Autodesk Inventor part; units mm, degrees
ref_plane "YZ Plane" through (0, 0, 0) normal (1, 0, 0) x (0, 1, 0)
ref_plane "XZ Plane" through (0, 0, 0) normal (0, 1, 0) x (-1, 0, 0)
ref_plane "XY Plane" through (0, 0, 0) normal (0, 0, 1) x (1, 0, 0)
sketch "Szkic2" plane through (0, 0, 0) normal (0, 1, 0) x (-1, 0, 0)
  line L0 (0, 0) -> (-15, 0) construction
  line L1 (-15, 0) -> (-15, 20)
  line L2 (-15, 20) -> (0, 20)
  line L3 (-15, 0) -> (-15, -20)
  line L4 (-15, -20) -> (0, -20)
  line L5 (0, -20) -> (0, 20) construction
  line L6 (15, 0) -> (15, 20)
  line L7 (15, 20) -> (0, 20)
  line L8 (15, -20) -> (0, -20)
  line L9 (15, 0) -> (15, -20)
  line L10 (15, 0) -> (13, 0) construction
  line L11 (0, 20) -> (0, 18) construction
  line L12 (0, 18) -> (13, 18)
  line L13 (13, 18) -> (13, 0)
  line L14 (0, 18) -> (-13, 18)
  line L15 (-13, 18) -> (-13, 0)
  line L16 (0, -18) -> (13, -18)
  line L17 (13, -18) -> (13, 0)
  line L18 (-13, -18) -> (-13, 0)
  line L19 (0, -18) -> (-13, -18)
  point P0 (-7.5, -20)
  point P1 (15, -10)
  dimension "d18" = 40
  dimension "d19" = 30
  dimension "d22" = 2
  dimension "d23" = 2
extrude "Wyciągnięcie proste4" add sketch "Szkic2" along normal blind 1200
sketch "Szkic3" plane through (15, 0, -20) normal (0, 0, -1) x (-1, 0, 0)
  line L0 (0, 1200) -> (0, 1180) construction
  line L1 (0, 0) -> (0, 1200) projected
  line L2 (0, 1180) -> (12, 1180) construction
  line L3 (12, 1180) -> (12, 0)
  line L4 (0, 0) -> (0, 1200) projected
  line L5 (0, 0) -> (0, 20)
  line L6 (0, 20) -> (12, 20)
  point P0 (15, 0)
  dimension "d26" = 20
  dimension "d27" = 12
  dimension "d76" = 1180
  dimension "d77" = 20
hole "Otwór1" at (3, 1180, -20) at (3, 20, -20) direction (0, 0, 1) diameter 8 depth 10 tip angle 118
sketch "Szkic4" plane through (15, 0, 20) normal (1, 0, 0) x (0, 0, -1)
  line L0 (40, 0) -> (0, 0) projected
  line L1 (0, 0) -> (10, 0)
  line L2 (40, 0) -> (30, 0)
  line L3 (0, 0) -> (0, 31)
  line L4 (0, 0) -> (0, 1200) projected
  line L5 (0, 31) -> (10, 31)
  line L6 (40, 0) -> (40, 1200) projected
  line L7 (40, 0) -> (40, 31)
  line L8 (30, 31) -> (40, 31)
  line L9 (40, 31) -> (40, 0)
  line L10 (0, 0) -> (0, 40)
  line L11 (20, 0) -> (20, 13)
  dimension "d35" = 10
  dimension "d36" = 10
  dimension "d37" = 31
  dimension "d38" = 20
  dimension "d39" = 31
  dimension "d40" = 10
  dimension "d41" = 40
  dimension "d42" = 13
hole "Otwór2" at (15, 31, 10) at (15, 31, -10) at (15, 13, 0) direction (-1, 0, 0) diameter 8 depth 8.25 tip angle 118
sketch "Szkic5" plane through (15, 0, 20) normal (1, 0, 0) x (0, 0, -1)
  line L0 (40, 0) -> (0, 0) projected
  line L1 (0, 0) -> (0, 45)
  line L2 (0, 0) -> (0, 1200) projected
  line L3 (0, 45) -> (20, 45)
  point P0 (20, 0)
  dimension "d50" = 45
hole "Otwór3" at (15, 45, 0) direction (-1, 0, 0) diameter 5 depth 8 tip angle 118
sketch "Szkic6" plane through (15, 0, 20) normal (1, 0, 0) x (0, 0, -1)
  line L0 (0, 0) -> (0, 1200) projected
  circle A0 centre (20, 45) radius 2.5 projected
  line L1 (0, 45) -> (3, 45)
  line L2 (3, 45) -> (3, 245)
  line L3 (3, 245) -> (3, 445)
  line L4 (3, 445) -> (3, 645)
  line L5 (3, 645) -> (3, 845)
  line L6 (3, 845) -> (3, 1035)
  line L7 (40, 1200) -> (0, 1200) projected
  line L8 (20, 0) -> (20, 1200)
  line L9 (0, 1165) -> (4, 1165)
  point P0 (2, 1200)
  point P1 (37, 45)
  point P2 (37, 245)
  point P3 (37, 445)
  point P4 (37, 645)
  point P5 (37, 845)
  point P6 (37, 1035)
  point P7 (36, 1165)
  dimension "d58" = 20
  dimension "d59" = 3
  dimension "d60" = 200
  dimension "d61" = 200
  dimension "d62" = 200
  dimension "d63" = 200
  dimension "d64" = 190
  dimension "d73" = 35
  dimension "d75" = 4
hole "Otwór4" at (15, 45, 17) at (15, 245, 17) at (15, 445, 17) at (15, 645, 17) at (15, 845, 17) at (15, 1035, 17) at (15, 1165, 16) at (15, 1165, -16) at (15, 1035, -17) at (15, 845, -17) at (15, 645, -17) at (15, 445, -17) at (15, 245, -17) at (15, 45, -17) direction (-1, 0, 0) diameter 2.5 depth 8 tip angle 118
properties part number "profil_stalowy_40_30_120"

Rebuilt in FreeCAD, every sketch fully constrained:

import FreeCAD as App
import Part
import Sketcher

V = App.Vector


def add_polygon(sketch, points):
    """Adds a closed chain of lines whose ends are joined by coincident constraints."""
    first, n = sketch.GeometryCount, len(points)
    for a, b in zip(points, points[1:] + points[:1]):
        sketch.addGeometry(Part.LineSegment(App.Vector(*a, 0), App.Vector(*b, 0)), False)
    for i in range(n):
        sketch.addConstraint(Sketcher.Constraint("Coincident", first + i, 2, first + (i + 1) % n, 1))

doc = App.newDocument("Part")
body = doc.addObject("PartDesign::Body", "Body")

sketch1 = body.newObject("Sketcher::SketchObject", "Sketch")
sketch1.AttachmentSupport = (doc.getObject("XZ_Plane"), [""])
sketch1.MapMode = "FlatFace"
add_polygon(sketch1, [(15, 20), (15, -20), (-15, -20), (-15, 20)])
add_polygon(sketch1, [(13, 18), (-13, 18), (-13, -18), (13, -18)])
sketch1.addConstraint([
    Sketcher.Constraint("Vertical", 0),
    Sketcher.Constraint("Horizontal", 1),
    Sketcher.Constraint("Vertical", 2),
    Sketcher.Constraint("Horizontal", 3),
    Sketcher.Constraint("Horizontal", 4),
    Sketcher.Constraint("Vertical", 5),
    Sketcher.Constraint("Horizontal", 6),
    Sketcher.Constraint("Vertical", 7),
    Sketcher.Constraint("Symmetric", 0, 2, 2, 2, -1, 1),
    Sketcher.Constraint("Symmetric", 4, 2, 6, 2, -1, 1),
    Sketcher.Constraint("DistanceX", 1, 2, 1, 1, 30.0),
    Sketcher.Constraint("DistanceY", 0, 2, 0, 1, 40.0),
    Sketcher.Constraint("DistanceX", 2, 2, 4, 2, 2.0),
    Sketcher.Constraint("DistanceY", 4, 2, 2, 2, 2.0),
])
pad1 = body.newObject("PartDesign::Pad", "Pad")
pad1.Profile = sketch1
pad1.Length = 1200
pad1.Reversed = True

sketch2 = body.newObject("Sketcher::SketchObject", "Sketch001")
sketch2.AttachmentSupport = (doc.getObject("XY_Plane"), [""])
sketch2.MapMode = "FlatFace"
sketch2.AttachmentOffset = App.Placement(V(0, 0, -20), App.Rotation())
sketch2.addGeometry([
    Part.Circle(V(3, 1180, 0), V(0, 0, 1), 4),
    Part.Circle(V(3, 20, 0), V(0, 0, 1), 4),
], False)
sketch2.addConstraint([
    Sketcher.Constraint("Equal", 0, 1),
    Sketcher.Constraint("Vertical", 0, 3, 1, 3),
    Sketcher.Constraint("Diameter", 0, 8.0),
    Sketcher.Constraint("DistanceX", -1, 1, 0, 3, 3.0),
    Sketcher.Constraint("DistanceY", -1, 1, 0, 3, 1180.0),
    Sketcher.Constraint("DistanceY", -1, 1, 1, 3, 20.0),
])
doc.recompute()
hole = body.newObject("PartDesign::Hole", "Hole")
hole.Profile = sketch2
hole.ThreadType = "None"
hole.Diameter = 8
hole.DepthType = "Dimension"
hole.Depth = 10
hole.DrillPoint = "Angled"
hole.DrillPointAngle = 118
hole.Reversed = True

sketch3 = body.newObject("Sketcher::SketchObject", "Sketch002")
sketch3.AttachmentSupport = (doc.getObject("YZ_Plane"), [""])
sketch3.MapMode = "FlatFace"
sketch3.AttachmentOffset = App.Placement(V(0, 0, 15), App.Rotation())
sketch3.addGeometry([
    Part.Circle(V(31, 10, 0), V(0, 0, 1), 4),
    Part.Circle(V(31, -10, 0), V(0, 0, 1), 4),
    Part.Circle(V(13, 0, 0), V(0, 0, 1), 4),
], False)
sketch3.addConstraint([
    Sketcher.Constraint("Equal", 0, 1),
    Sketcher.Constraint("Equal", 1, 2),
    Sketcher.Constraint("Symmetric", 0, 3, 1, 3, -1),
    Sketcher.Constraint("PointOnObject", 2, 3, -1),
    Sketcher.Constraint("Diameter", 0, 8.0),
    Sketcher.Constraint("DistanceX", -1, 1, 0, 3, 31.0),
    Sketcher.Constraint("DistanceY", -1, 1, 0, 3, 10.0),
    Sketcher.Constraint("DistanceX", -1, 1, 2, 3, 13.0),
])
doc.recompute()
hole2 = body.newObject("PartDesign::Hole", "Hole001")
hole2.Profile = sketch3
hole2.ThreadType = "None"
hole2.Diameter = 8
hole2.DepthType = "Dimension"
hole2.Depth = 8.25
hole2.DrillPoint = "Angled"
hole2.DrillPointAngle = 118

sketch4 = body.newObject("Sketcher::SketchObject", "Sketch003")
sketch4.AttachmentSupport = (doc.getObject("YZ_Plane"), [""])
sketch4.MapMode = "FlatFace"
sketch4.AttachmentOffset = App.Placement(V(0, 0, 15), App.Rotation())
sketch4.addGeometry(Part.Circle(V(45, 0, 0), V(0, 0, 1), 2.5), False)
sketch4.addConstraint([
    Sketcher.Constraint("PointOnObject", 0, 3, -1),
    Sketcher.Constraint("Diameter", 0, 5.0),
    Sketcher.Constraint("DistanceX", -1, 1, 0, 3, 45.0),
])
doc.recompute()
hole3 = body.newObject("PartDesign::Hole", "Hole002")
hole3.Profile = sketch4
hole3.ThreadType = "None"
hole3.Diameter = 5
hole3.DepthType = "Dimension"
hole3.Depth = 8
hole3.DrillPoint = "Angled"
hole3.DrillPointAngle = 118

sketch5 = body.newObject("Sketcher::SketchObject", "Sketch004")
sketch5.AttachmentSupport = (doc.getObject("YZ_Plane"), [""])
sketch5.MapMode = "FlatFace"
sketch5.AttachmentOffset = App.Placement(V(0, 0, 15), App.Rotation())
sketch5.addGeometry([
    Part.Circle(V(45, 17, 0), V(0, 0, 1), 1.2),
    Part.Circle(V(245, 17, 0), V(0, 0, 1), 1.2),
    Part.Circle(V(445, 17, 0), V(0, 0, 1), 1.2),
    Part.Circle(V(645, 17, 0), V(0, 0, 1), 1.2),
    Part.Circle(V(845, 17, 0), V(0, 0, 1), 1.2),
    Part.Circle(V(1035, 17, 0), V(0, 0, 1), 1.2),
    Part.Circle(V(1165, 16, 0), V(0, 0, 1), 1.2),
    Part.Circle(V(1165, -16, 0), V(0, 0, 1), 1.2),
    Part.Circle(V(1035, -17, 0), V(0, 0, 1), 1.2),
    Part.Circle(V(845, -17, 0), V(0, 0, 1), 1.2),
    Part.Circle(V(645, -17, 0), V(0, 0, 1), 1.2),
    Part.Circle(V(445, -17, 0), V(0, 0, 1), 1.2),
    Part.Circle(V(245, -17, 0), V(0, 0, 1), 1.2),
    Part.Circle(V(45, -17, 0), V(0, 0, 1), 1.2),
], False)
sketch5.addConstraint([
    Sketcher.Constraint("Equal", 0, 1),
    Sketcher.Constraint("Equal", 1, 2),
    Sketcher.Constraint("Equal", 2, 3),
    Sketcher.Constraint("Equal", 3, 4),
    Sketcher.Constraint("Equal", 4, 5),
    Sketcher.Constraint("Equal", 5, 6),
    Sketcher.Constraint("Equal", 6, 7),
    Sketcher.Constraint("Equal", 7, 8),
    Sketcher.Constraint("Equal", 8, 9),
    Sketcher.Constraint("Equal", 9, 10),
    Sketcher.Constraint("Equal", 10, 11),
    Sketcher.Constraint("Equal", 11, 12),
    Sketcher.Constraint("Equal", 12, 13),
    Sketcher.Constraint("Symmetric", 6, 3, 7, 3, -1),
    Sketcher.Constraint("Symmetric", 5, 3, 8, 3, -1),
    Sketcher.Constraint("Symmetric", 4, 3, 9, 3, -1),
    Sketcher.Constraint("Symmetric", 3, 3, 10, 3, -1),
    Sketcher.Constraint("Symmetric", 2, 3, 11, 3, -1),
    Sketcher.Constraint("Symmetric", 1, 3, 12, 3, -1),
    Sketcher.Constraint("Symmetric", 0, 3, 13, 3, -1),
    Sketcher.Constraint("Horizontal", 0, 3, 1, 3),
    Sketcher.Constraint("Horizontal", 1, 3, 2, 3),
    Sketcher.Constraint("Horizontal", 2, 3, 3, 3),
    Sketcher.Constraint("Horizontal", 3, 3, 4, 3),
    Sketcher.Constraint("Horizontal", 4, 3, 5, 3),
    Sketcher.Constraint("Diameter", 0, 2.5),
    Sketcher.Constraint("DistanceX", -1, 1, 0, 3, 45.0),
    Sketcher.Constraint("DistanceY", -1, 1, 0, 3, 17.0),
    Sketcher.Constraint("DistanceX", -1, 1, 1, 3, 245.0),
    Sketcher.Constraint("DistanceX", -1, 1, 2, 3, 445.0),
    Sketcher.Constraint("DistanceX", -1, 1, 3, 3, 645.0),
    Sketcher.Constraint("DistanceX", -1, 1, 4, 3, 845.0),
    Sketcher.Constraint("DistanceX", -1, 1, 5, 3, 1035.0),
    Sketcher.Constraint("DistanceX", -1, 1, 6, 3, 1165.0),
    Sketcher.Constraint("DistanceY", -1, 1, 6, 3, 16.0),
])
doc.recompute()
hole4 = body.newObject("PartDesign::Hole", "Hole003")
hole4.Profile = sketch5
hole4.ThreadType = "None"
hole4.Diameter = 2.5
hole4.DepthType = "Dimension"
hole4.Depth = 8
hole4.DrillPoint = "Angled"
hole4.DrillPointAngle = 118

doc.recompute()
